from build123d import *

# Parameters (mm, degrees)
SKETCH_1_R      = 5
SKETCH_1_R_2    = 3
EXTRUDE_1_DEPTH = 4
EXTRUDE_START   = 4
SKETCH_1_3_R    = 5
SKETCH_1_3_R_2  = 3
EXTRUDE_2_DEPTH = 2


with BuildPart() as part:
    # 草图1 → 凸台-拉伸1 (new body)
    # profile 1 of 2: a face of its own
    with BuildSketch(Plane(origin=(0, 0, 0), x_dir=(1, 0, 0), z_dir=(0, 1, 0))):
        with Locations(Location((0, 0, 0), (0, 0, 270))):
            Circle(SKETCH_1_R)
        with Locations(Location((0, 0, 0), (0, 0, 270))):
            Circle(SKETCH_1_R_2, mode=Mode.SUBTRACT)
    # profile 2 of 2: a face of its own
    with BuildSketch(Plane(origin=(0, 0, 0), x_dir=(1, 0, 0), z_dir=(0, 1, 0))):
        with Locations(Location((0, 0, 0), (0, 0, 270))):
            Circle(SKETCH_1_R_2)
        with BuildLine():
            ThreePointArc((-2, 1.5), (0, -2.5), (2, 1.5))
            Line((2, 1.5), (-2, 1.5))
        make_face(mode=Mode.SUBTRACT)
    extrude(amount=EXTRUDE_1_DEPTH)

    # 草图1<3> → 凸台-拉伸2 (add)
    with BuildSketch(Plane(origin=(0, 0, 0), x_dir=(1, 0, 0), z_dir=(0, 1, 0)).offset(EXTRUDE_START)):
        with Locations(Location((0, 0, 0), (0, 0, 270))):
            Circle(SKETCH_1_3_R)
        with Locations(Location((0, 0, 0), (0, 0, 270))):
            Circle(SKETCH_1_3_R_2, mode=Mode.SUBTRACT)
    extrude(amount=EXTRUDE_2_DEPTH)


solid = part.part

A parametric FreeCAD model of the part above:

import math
import FreeCAD as App
import Part
import Sketcher
from FreeCAD import Vector

doc = App.newDocument("Part")
body = doc.addObject("PartDesign::Body", "Body")

# Sketch on XZ plane
sketch1 = body.newObject("Sketcher::SketchObject", "Sketch")
sketch1.AttachmentSupport = (doc.getObject("XZ_Plane"), [""])
sketch1.MapMode = "FlatFace"
sketch1.addGeometry(Part.Circle(Vector(0, 0, 0), Vector(0, 0, 1), 5), False)
sketch1.addGeometry(Part.LineSegment(Vector(-2, -1.5, 0), Vector(2, -1.5, 0)), False)
sketch1.addGeometry(Part.ArcOfCircle(Part.Circle(Vector(0, 0, 0), Vector(0, 0, 1), 2.5), math.radians(-36.869898), math.radians(216.869898)), False)
sketch1.addConstraint(Sketcher.Constraint("Coincident", 1, 1, 2, 2))
sketch1.addConstraint(Sketcher.Constraint("Coincident", 2, 1, 1, 2))
sketch1.addConstraint(Sketcher.Constraint("Horizontal", 1))
sketch1.addConstraint(Sketcher.Constraint("Coincident", 0, 3, -1, 1))
sketch1.addConstraint(Sketcher.Constraint("Coincident", 2, 3, -1, 1))
sketch1.addConstraint(Sketcher.Constraint("Diameter", 0, 10.0))
sketch1.addConstraint(Sketcher.Constraint("Radius", 2, 2.5))
sketch1.addConstraint(Sketcher.Constraint("DistanceX", 1, 1, 1, 2, 4.0))
pad1 = body.newObject("PartDesign::Pad", "Pad")
pad1.Profile = sketch1
pad1.Length = 4
pad1.Reversed = True

# Sketch on XZ plane
sketch2 = body.newObject("Sketcher::SketchObject", "Sketch001")
sketch2.AttachmentSupport = (doc.getObject("XZ_Plane"), [""])
sketch2.MapMode = "FlatFace"
sketch2.AttachmentOffset = App.Placement(Vector(0, 0, -4), App.Rotation())
sketch2.addGeometry(Part.Circle(Vector(0, 0, 0), Vector(0, 0, 1), 5), False)
sketch2.addGeometry(Part.Circle(Vector(0, 0, 0), Vector(0, 0, 1), 3), False)
sketch2.addConstraint(Sketcher.Constraint("Coincident", 0, 3, -1, 1))
sketch2.addConstraint(Sketcher.Constraint("Coincident", 1, 3, -1, 1))
sketch2.addConstraint(Sketcher.Constraint("Diameter", 0, 10.0))
sketch2.addConstraint(Sketcher.Constraint("Diameter", 1, 6.0))
pad2 = body.newObject("PartDesign::Pad", "Pad001")
pad2.Profile = sketch2
pad2.Length = 2
pad2.Reversed = True

doc.recompute()
